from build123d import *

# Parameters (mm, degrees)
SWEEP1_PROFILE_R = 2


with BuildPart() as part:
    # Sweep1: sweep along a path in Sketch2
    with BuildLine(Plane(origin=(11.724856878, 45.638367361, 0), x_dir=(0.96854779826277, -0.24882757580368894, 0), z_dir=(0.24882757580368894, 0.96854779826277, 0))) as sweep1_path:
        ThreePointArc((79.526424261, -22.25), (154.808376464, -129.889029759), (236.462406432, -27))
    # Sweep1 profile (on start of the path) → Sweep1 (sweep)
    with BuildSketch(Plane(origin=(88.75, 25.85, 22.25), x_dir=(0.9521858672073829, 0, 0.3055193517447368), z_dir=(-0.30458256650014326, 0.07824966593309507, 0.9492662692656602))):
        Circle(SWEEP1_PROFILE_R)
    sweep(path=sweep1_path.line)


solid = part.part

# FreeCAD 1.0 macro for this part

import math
import FreeCAD as App
import Part
import Sketcher
from FreeCAD import Vector
Q = App.Units.Quantity

doc = App.newDocument("Part")
body = doc.addObject("PartDesign::Body", "Body")

sketch1 = body.newObject("Sketcher::SketchObject", "Sketch")
sketch1.Placement = App.Placement(Vector(88.75, 25.85, 22.25), App.Rotation(Vector(0.952185867, 0, 0.305519352), Vector(0.023906787, 0.996933794, -0.074508226), Vector(-0.304582567, 0.078249666, 0.949266269), "ZXY"))
sketch1.addGeometry(Part.Circle(Vector(0, 0, 0), Vector(0, 0, 1), 2), False)
sketch1.addConstraint([
    Sketcher.Constraint("Coincident", 0, 3, -1, 1),
    Sketcher.Constraint("Diameter", 0, Q("4 mm")),
])

sketch2 = body.newObject("Sketcher::SketchObject", "Sketch001")
sketch2.Placement = App.Placement(Vector(11.724857, 45.638367, 0), App.Rotation(Vector(0.968547798, -0.248827576, 0), Vector(0, 0, 1), Vector(-0.248827576, -0.968547798, 0), "ZXY"))
sketch2.addGeometry(Part.ArcOfCircle(Part.Circle(Vector(157, 48, 0), Vector(0, 0, 1), 82), math.radians(-15), math.radians(198)), False)
sketch2.addConstraint([
    Sketcher.Constraint("DistanceY", -1, 1, 0, 1, Q("27 mm")),
    Sketcher.Constraint("DistanceY", -1, 1, 0, 2, Q("22.25 mm")),
    Sketcher.Constraint("Radius", 0, Q("81.91609 mm")),
    Sketcher.Constraint("DistanceX", 0, 3, 0, 1, Q("79.175801 mm")),
    Sketcher.Constraint("DistanceX", -1, 1, 0, 3, Q("157.286606 mm")),
])
doc.recompute()

additivepipe = body.newObject("PartDesign::AdditivePipe", "AdditivePipe")
additivepipe.Profile = sketch1
additivepipe.Spine = (sketch2, ["Edge1"])

doc.recompute()
